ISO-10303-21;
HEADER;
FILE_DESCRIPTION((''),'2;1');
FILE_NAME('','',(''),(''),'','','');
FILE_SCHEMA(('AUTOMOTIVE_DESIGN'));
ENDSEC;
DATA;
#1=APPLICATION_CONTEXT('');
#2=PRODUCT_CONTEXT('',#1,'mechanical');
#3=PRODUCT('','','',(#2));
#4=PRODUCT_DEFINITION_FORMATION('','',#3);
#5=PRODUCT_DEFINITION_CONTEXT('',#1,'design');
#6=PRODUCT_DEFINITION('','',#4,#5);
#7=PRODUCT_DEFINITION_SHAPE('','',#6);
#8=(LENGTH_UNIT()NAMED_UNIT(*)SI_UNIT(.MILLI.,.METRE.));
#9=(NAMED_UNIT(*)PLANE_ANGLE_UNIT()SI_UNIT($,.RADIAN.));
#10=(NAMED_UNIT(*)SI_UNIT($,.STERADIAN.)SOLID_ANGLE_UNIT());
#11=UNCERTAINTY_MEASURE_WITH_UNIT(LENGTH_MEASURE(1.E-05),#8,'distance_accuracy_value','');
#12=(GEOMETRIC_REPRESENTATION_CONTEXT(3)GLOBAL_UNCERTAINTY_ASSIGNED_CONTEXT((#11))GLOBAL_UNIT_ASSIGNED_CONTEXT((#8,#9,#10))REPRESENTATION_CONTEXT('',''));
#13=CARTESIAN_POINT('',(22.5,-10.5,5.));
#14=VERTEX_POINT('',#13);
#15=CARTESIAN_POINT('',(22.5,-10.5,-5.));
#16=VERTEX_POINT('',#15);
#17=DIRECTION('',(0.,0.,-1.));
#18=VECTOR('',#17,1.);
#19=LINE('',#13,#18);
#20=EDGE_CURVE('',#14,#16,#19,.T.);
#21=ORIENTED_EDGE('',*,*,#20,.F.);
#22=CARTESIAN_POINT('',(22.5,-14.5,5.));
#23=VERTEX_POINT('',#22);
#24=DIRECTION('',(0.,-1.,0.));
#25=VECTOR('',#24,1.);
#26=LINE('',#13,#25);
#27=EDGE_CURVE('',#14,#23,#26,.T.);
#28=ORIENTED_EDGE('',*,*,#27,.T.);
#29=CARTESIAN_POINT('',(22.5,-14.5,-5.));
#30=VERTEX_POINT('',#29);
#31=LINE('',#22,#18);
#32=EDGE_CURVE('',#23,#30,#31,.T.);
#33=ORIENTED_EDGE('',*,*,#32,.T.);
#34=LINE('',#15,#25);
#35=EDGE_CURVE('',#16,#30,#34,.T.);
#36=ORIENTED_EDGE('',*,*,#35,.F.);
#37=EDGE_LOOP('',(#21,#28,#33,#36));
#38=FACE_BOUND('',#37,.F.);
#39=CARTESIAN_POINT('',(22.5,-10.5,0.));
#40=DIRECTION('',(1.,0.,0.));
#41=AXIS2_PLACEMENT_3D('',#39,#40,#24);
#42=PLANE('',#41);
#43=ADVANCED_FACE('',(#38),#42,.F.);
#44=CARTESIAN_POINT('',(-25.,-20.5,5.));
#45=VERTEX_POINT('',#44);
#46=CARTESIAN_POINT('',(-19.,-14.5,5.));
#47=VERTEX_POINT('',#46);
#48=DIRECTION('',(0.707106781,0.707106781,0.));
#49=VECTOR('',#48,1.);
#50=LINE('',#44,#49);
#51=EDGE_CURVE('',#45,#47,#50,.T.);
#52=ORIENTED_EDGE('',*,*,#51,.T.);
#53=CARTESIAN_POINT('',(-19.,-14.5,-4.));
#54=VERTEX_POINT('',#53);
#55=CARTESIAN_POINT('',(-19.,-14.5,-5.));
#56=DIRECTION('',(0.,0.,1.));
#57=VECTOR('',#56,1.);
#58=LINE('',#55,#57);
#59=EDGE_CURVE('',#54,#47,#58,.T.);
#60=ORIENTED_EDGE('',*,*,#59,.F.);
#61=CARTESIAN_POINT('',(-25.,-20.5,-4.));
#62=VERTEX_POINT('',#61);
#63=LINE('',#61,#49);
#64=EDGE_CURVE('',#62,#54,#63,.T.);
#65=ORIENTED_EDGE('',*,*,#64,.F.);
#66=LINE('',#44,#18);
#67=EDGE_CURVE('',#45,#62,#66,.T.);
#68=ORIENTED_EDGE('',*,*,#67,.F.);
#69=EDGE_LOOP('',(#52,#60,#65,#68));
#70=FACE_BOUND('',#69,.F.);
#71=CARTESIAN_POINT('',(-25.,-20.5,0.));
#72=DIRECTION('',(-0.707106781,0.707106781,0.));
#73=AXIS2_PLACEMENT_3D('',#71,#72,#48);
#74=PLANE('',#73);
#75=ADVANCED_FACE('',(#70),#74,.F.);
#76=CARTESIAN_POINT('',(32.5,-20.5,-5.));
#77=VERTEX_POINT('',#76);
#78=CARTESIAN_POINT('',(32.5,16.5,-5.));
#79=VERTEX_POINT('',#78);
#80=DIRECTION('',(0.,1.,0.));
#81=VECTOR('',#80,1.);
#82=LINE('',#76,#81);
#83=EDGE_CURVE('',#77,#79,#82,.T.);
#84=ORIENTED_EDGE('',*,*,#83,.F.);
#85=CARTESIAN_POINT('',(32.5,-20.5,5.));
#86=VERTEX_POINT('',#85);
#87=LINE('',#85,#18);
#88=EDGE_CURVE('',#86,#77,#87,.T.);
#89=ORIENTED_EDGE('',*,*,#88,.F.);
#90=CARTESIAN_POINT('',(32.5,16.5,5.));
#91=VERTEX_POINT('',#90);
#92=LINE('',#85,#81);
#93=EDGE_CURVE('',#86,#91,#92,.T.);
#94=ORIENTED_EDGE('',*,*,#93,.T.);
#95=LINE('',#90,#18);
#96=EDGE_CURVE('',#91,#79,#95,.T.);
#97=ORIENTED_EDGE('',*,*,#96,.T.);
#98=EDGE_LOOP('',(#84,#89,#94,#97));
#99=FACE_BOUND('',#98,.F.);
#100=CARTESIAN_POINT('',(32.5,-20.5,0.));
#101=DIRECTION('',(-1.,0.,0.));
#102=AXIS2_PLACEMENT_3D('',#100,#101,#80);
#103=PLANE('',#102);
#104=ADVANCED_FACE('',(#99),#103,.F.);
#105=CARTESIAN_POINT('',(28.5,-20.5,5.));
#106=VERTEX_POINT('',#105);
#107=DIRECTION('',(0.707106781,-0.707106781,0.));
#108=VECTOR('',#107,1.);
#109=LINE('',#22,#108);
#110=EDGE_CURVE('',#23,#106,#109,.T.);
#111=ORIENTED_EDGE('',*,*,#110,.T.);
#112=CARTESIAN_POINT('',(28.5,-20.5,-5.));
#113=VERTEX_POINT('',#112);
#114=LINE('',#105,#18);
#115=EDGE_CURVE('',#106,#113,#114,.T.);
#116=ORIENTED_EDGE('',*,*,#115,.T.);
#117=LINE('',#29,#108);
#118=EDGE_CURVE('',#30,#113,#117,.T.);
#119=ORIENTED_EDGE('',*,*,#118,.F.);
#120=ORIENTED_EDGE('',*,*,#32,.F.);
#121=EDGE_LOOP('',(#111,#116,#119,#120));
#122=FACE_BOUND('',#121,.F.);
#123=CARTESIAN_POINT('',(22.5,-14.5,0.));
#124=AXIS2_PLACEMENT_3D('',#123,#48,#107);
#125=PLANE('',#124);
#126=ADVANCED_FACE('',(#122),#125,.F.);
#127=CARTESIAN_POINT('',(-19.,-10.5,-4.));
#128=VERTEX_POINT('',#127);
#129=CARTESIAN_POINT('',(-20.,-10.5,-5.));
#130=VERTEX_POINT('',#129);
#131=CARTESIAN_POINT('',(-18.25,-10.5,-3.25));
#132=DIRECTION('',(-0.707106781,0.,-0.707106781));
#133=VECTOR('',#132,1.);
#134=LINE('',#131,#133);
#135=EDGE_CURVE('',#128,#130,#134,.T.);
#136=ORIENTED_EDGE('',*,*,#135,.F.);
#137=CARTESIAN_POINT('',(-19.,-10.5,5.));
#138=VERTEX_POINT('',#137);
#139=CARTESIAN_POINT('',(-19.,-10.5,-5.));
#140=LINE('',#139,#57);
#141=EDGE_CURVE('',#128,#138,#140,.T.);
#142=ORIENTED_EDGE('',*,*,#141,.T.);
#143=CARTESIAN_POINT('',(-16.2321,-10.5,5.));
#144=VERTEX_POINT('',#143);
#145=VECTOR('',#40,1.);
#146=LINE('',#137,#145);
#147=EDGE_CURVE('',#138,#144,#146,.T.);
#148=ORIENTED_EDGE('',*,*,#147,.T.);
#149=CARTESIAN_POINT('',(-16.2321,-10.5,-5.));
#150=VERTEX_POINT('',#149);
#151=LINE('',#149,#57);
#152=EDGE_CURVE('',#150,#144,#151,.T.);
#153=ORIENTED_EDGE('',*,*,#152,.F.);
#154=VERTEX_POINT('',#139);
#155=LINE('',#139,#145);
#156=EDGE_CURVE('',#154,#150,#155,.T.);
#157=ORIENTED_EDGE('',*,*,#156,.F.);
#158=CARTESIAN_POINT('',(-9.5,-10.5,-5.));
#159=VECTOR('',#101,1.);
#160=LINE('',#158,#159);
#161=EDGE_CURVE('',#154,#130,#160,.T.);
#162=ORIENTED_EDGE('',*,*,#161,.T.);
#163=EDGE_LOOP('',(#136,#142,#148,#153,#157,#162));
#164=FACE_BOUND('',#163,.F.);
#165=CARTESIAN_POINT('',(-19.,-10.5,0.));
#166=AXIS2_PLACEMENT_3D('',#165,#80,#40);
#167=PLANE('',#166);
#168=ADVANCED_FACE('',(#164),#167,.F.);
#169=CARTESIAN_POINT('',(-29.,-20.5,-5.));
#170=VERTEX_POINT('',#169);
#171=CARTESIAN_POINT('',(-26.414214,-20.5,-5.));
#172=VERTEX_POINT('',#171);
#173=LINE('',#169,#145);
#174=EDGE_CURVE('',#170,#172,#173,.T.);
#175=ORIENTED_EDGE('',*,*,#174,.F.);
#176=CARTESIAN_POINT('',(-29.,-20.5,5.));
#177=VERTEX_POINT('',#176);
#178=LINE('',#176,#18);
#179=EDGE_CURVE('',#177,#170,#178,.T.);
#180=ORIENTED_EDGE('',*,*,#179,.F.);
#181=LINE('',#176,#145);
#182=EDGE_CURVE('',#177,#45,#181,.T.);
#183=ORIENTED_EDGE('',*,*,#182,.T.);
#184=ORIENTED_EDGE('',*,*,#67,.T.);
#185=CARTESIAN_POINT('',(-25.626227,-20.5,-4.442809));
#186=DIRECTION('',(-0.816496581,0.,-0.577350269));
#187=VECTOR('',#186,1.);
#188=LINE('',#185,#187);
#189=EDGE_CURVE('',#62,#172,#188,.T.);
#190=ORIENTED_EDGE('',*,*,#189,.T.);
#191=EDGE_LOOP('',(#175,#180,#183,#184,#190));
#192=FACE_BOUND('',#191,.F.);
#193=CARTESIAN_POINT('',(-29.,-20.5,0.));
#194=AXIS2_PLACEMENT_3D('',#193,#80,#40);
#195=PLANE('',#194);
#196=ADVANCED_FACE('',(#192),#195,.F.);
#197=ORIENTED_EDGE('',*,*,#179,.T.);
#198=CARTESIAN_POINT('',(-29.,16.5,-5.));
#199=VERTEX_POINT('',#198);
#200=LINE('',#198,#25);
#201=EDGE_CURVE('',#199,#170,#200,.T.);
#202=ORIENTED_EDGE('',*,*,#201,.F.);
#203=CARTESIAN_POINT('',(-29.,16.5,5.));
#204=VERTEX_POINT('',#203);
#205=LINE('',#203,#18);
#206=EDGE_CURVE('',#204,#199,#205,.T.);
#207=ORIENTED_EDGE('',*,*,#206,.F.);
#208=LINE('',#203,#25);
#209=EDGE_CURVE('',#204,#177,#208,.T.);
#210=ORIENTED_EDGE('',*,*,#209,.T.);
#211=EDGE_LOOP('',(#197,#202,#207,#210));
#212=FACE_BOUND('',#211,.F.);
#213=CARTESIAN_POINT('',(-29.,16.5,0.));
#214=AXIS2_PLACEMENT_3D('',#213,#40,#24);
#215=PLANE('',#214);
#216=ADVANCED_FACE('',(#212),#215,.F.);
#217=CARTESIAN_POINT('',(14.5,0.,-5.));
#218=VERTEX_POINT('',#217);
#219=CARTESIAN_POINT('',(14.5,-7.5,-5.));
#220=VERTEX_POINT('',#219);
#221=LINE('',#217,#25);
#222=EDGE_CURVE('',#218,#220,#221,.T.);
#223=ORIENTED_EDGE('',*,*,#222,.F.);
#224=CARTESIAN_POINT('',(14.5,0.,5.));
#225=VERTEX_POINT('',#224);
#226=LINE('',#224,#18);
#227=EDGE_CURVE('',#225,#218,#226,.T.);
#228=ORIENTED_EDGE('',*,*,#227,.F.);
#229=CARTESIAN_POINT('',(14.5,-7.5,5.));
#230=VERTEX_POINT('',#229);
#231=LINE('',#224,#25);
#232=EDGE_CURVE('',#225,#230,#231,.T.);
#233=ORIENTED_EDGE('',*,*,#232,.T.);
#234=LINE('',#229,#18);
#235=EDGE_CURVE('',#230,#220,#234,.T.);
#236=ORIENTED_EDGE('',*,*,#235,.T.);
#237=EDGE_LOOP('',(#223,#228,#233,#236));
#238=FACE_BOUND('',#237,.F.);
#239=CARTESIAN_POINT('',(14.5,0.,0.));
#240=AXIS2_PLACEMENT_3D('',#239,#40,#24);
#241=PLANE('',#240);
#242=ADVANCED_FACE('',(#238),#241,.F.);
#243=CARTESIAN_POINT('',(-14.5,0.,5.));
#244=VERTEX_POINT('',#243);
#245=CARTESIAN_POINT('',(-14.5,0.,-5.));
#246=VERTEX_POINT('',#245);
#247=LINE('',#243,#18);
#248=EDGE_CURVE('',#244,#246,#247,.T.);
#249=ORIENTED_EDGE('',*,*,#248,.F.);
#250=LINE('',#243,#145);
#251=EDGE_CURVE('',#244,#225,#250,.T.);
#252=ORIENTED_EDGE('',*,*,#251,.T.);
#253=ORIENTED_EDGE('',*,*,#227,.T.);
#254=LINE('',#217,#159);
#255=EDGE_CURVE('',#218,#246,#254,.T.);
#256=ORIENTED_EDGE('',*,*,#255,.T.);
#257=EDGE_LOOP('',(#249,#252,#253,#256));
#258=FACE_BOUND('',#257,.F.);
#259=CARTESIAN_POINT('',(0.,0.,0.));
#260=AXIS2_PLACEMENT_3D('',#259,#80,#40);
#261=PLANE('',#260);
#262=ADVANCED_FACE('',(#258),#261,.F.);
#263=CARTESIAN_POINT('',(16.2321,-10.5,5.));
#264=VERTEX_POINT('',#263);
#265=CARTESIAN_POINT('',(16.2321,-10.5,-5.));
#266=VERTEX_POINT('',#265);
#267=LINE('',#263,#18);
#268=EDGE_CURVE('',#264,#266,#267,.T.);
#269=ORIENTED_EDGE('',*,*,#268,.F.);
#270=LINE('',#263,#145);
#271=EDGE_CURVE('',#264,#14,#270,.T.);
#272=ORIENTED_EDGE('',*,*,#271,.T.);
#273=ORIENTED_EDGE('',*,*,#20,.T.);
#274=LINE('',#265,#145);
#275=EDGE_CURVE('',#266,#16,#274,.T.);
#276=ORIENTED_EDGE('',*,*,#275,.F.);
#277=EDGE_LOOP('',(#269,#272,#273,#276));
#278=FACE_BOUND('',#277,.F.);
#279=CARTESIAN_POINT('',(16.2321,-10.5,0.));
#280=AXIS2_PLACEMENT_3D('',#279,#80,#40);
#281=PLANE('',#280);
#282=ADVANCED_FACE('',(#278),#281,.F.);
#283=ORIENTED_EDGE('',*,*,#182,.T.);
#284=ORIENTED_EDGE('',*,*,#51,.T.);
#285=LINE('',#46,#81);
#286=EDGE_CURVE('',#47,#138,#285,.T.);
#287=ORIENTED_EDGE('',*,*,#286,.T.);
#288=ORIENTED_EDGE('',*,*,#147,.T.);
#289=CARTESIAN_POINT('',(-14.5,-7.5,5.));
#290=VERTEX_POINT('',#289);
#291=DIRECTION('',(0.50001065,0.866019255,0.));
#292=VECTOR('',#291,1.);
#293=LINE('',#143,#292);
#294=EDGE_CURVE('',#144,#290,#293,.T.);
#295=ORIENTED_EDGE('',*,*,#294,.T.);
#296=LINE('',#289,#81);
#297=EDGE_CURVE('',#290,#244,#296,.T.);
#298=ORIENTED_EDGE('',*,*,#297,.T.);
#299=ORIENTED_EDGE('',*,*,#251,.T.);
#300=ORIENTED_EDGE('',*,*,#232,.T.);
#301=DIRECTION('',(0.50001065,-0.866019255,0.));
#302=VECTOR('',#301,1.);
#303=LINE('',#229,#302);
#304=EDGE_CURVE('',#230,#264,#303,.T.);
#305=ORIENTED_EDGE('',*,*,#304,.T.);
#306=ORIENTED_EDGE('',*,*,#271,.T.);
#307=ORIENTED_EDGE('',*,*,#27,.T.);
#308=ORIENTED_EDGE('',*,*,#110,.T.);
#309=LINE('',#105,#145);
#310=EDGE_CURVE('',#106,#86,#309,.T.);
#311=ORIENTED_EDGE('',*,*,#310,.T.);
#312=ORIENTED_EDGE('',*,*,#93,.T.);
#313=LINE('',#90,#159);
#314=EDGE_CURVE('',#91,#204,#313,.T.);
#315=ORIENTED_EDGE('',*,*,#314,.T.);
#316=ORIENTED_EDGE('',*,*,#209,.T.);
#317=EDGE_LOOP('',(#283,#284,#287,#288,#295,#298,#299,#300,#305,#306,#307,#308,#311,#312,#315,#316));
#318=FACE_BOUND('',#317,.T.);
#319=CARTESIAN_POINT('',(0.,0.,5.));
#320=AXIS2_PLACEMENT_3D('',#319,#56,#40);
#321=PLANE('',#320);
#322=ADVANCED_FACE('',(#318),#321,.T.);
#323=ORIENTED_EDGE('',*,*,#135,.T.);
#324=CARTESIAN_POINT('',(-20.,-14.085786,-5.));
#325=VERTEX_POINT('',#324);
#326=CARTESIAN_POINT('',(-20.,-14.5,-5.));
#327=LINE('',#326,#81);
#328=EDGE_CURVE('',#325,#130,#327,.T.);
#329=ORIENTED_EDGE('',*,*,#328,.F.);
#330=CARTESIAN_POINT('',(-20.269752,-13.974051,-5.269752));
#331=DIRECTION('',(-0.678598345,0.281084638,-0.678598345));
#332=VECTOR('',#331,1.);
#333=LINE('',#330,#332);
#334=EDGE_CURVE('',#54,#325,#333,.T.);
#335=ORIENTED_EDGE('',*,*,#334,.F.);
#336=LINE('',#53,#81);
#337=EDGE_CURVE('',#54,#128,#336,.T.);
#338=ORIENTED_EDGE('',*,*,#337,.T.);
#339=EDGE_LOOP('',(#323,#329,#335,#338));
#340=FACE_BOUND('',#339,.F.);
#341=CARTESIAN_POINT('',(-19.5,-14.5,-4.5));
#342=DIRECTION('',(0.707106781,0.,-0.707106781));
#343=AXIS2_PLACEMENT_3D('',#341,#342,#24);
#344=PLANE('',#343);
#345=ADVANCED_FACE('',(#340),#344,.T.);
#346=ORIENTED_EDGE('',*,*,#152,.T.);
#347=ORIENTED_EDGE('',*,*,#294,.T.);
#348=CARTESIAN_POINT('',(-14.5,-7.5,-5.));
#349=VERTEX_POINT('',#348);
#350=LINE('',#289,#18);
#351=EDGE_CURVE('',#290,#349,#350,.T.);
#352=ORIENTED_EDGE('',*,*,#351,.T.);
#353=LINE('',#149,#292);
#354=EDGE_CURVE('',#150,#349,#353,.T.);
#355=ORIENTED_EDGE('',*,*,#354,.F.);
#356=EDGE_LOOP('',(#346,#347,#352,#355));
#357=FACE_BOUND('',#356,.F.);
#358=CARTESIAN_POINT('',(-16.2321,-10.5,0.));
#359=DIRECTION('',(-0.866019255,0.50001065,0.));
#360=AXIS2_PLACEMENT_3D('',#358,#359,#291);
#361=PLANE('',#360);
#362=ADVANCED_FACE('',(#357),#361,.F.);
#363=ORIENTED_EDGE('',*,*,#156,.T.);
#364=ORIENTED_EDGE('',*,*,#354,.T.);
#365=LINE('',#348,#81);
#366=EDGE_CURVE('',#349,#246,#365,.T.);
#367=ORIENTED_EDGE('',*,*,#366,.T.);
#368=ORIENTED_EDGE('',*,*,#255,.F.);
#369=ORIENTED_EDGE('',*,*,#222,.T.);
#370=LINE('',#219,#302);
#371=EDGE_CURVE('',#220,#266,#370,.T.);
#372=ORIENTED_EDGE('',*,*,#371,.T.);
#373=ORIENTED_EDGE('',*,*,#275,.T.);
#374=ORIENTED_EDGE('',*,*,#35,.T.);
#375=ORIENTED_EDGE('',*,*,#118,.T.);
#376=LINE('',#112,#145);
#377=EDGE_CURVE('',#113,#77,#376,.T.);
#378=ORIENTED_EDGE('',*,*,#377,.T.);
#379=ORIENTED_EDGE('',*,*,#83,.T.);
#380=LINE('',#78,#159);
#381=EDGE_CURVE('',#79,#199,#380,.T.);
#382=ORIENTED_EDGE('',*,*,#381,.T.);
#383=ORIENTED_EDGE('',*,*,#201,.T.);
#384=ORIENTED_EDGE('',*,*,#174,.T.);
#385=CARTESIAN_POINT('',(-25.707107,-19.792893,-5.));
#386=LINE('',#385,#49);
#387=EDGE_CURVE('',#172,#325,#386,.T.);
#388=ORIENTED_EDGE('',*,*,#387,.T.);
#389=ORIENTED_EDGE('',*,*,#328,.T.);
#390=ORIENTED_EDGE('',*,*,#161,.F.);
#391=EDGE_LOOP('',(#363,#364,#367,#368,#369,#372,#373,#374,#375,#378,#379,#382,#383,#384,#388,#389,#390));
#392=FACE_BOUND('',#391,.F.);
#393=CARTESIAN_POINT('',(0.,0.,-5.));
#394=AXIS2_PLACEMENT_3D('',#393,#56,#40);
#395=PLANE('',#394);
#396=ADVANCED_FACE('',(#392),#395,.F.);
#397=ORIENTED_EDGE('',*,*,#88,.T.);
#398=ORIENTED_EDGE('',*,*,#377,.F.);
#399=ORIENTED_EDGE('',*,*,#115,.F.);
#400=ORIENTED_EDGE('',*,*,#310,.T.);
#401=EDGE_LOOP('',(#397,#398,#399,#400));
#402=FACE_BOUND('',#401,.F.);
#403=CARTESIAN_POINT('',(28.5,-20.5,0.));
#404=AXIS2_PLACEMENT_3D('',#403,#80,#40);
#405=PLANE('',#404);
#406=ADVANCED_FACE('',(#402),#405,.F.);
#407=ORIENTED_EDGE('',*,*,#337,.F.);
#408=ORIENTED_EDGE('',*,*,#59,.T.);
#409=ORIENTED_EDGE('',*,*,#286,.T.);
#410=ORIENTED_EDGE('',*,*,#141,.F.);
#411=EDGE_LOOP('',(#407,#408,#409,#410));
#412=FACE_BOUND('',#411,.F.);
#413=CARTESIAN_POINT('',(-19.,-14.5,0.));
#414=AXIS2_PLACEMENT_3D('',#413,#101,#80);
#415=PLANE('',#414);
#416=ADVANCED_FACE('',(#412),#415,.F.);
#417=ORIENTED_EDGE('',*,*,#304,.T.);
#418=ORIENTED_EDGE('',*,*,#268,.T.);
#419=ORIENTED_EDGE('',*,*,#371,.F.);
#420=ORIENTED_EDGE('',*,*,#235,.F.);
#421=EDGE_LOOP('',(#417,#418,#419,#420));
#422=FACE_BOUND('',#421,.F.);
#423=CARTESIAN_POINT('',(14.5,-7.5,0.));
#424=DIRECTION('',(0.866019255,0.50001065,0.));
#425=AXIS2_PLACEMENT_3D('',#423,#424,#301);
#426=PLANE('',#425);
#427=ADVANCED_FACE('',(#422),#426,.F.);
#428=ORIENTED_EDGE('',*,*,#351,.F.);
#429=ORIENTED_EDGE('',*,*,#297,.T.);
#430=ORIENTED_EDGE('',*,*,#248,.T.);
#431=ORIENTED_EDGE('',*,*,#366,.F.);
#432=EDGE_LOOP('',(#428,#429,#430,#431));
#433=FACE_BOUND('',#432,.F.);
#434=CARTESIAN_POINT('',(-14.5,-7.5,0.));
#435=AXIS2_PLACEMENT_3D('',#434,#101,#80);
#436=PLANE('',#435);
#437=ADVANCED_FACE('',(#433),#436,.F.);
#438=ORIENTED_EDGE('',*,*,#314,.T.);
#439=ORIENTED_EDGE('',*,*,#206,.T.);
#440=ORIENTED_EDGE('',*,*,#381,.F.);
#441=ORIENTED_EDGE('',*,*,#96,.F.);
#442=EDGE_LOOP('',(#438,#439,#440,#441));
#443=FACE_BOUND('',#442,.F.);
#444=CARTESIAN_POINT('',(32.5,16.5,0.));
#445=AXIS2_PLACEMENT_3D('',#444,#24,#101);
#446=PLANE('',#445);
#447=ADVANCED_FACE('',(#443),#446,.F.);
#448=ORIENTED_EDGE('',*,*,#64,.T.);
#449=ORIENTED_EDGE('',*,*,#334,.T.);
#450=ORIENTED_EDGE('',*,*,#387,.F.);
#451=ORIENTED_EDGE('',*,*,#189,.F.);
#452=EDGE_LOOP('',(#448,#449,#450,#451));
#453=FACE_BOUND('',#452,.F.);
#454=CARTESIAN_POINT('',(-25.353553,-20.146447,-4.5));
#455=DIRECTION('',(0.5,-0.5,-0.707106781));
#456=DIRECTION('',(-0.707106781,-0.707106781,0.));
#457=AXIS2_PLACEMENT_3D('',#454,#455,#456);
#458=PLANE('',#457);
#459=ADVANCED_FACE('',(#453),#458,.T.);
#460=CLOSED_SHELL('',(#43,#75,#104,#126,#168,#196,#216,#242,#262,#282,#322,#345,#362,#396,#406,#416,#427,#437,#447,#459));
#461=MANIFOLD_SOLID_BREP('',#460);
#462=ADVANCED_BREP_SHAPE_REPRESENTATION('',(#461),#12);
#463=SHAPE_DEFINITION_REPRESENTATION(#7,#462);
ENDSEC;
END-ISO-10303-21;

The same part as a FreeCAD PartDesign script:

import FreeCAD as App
import Part
import Sketcher

V = App.Vector
Q = App.Units.Quantity


def edges_at(feature, points):
    """Names of the edges that pass closest to the given points."""
    edges = feature.Shape.Edges
    near = lambda p: min(range(len(edges)), key=lambda i: edges[i].distToShape(Part.Vertex(*p))[0])
    return sorted({f"Edge{near(p) + 1}" for p in points})


def add_polygon(sketch, points):
    """Adds a closed chain of lines whose ends are joined by coincident constraints."""
    first, n = sketch.GeometryCount, len(points)
    for a, b in zip(points, points[1:] + points[:1]):
        sketch.addGeometry(Part.LineSegment(App.Vector(*a, 0), App.Vector(*b, 0)), False)
    for i in range(n):
        sketch.addConstraint(Sketcher.Constraint("Coincident", first + i, 2, first + (i + 1) % n, 1))

doc = App.newDocument("Part")
body = doc.addObject("PartDesign::Body", "Body")

sketch1 = doc.addObject("Sketcher::SketchObject", "Sketch")
body.addObject(sketch1)
sketch1.AttachmentSupport = (doc.XY_Plane, [""])
sketch1.MapMode = "FlatFace"
add_polygon(sketch1, [(-25, -20.5), (-19, -14.5), (-19, -10.5), (-16.2, -10.5), (-14.5, -7.5), (-14.5, 0), (14.5, 0), (14.5, -7.5), (16.2, -10.5), (22.5, -10.5), (22.5, -14.5), (28.5, -20.5), (32.5, -20.5), (32.5, 16.5), (-29, 16.5), (-29, -20.5)])
sketch1.addConstraint([
    Sketcher.Constraint("Vertical", 1),
    Sketcher.Constraint("Horizontal", 2),
    Sketcher.Constraint("Vertical", 4),
    Sketcher.Constraint("Horizontal", 5),
    Sketcher.Constraint("Vertical", 6),
    Sketcher.Constraint("Horizontal", 8),
    Sketcher.Constraint("Vertical", 9),
    Sketcher.Constraint("Horizontal", 11),
    Sketcher.Constraint("Vertical", 12),
    Sketcher.Constraint("Horizontal", 13),
    Sketcher.Constraint("Vertical", 14),
    Sketcher.Constraint("Horizontal", 15),
    Sketcher.Constraint("Symmetric", 4, 2, 5, 2, -1, 1),
    Sketcher.Constraint("Symmetric", 2, 2, 7, 2, -2),
    Sketcher.Constraint("Perpendicular", 0, 10),
    Sketcher.Constraint("Horizontal", 3, 2, 6, 2),
    Sketcher.Constraint("Horizontal", 0, 2, 9, 2),
    Sketcher.Constraint("Horizontal", 11, 2, 14, 2),
    Sketcher.Constraint("Equal", 11, 15),
    Sketcher.Constraint("Equal", 15, 1),
    Sketcher.Constraint("Equal", 0, 10),
    Sketcher.Constraint("DistanceX", 5, 1, 5, 2, 29.0),
    Sketcher.Constraint("DistanceX", 11, 1, 11, 2, 4.0),
    Sketcher.Constraint("DistanceY", 4, 1, 4, 2, 7.5),
    Sketcher.Constraint("DistanceX", 13, 2, -1, 1, 29.0),
    Sketcher.Constraint("DistanceY", 10, 2, 8, 2, 10.0),
    Sketcher.Constraint("DistanceY", 1, 2, -1, 1, 10.5),
    Sketcher.Constraint("DistanceY", -1, 1, 12, 2, 16.5),
    Sketcher.Constraint("Angle", 3, Q("59.9993 deg")),
    Sketcher.Constraint("DistanceX", 13, 2, 13, 1, 61.5),
])
pad1 = doc.addObject("PartDesign::Pad", "Pad")
body.addObject(pad1)
pad1.Profile = sketch1
pad1.Length = 10
pad1.Midplane = True
doc.recompute()

chamfer = doc.addObject("PartDesign::Chamfer", "Chamfer")
body.addObject(chamfer)
chamfer.Base = (pad1, edges_at(pad1, [(-19, -12.5, -5), (-22, -17.5, -5)]))
chamfer.Size = 1

doc.recompute()
